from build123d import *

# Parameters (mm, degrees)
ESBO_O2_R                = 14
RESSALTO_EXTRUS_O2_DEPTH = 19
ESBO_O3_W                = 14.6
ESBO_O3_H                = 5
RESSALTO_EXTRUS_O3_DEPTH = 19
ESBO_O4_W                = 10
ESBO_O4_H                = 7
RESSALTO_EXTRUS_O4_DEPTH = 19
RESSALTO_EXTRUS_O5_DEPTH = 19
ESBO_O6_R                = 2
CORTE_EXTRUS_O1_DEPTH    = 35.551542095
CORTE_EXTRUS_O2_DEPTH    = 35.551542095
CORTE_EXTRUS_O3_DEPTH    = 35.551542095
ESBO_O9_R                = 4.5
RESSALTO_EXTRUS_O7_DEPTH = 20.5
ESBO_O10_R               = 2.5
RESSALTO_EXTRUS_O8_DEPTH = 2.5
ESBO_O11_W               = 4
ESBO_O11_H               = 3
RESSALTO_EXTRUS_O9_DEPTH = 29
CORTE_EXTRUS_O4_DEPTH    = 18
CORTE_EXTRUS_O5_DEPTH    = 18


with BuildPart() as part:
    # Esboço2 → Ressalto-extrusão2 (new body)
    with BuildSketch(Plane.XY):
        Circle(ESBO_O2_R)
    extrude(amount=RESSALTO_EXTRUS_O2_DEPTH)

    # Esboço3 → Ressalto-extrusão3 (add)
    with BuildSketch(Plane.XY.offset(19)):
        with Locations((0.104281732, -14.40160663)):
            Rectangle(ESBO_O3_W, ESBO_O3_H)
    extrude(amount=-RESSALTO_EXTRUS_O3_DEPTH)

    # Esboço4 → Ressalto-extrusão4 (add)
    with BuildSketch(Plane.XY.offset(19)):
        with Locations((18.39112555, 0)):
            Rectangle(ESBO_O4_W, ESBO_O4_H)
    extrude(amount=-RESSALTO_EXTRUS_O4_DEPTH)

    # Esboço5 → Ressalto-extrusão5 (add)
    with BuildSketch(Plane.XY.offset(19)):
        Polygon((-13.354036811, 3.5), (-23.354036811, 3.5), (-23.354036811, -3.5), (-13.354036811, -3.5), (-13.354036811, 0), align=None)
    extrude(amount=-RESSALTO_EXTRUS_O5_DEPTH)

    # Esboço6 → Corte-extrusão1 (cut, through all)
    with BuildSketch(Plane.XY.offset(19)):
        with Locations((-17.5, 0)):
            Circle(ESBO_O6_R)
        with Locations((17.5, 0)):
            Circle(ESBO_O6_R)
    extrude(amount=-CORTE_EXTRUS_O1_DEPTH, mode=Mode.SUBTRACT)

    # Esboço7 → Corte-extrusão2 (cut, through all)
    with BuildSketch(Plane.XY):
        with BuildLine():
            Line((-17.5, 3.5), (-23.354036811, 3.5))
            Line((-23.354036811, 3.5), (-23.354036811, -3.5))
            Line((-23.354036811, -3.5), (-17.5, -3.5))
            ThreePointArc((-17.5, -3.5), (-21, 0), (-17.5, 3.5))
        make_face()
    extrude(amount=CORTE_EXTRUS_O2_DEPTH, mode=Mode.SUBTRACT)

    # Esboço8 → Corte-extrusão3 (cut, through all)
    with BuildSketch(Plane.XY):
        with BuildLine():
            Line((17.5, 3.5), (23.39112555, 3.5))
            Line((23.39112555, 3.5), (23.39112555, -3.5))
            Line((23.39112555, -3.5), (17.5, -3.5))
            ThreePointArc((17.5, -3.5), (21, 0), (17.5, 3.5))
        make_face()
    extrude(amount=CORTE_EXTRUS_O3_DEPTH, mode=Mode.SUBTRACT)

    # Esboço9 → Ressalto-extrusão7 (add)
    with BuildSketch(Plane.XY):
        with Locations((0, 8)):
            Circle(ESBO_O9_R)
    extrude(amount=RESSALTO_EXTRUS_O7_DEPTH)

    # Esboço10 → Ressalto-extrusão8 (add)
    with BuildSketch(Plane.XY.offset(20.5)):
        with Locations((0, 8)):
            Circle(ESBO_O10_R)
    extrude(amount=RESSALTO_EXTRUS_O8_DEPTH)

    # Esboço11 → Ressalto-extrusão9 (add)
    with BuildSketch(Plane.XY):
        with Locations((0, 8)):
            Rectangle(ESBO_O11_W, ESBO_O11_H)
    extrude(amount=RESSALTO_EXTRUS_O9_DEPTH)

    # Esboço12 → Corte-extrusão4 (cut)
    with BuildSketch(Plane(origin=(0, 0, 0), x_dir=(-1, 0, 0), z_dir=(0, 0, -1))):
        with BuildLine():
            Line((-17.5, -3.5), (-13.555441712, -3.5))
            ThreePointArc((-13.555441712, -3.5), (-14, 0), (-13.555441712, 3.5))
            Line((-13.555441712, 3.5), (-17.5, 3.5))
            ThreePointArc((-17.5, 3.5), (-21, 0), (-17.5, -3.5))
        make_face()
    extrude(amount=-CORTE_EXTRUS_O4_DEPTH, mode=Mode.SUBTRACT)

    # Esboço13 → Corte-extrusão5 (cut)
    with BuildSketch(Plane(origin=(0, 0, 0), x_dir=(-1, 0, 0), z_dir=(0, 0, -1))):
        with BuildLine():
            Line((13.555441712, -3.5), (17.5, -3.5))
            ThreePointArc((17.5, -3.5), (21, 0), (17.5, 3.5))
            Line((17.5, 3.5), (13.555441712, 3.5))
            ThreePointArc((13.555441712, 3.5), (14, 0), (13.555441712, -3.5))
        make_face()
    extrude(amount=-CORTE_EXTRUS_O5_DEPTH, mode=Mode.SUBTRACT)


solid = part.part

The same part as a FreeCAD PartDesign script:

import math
import FreeCAD as App
import Part
import Sketcher
from FreeCAD import Vector


def add_polygon(sketch, points):
    """Adds a closed chain of lines whose ends are joined by coincident constraints."""
    first, n = sketch.GeometryCount, len(points)
    for a, b in zip(points, points[1:] + points[:1]):
        sketch.addGeometry(Part.LineSegment(App.Vector(*a, 0), App.Vector(*b, 0)), False)
    for i in range(n):
        sketch.addConstraint(Sketcher.Constraint("Coincident", first + i, 2, first + (i + 1) % n, 1))

doc = App.newDocument("Part")
body = doc.addObject("PartDesign::Body", "Body")

# Sketch on XY plane
sketch1 = doc.addObject("Sketcher::SketchObject", "Sketch")
body.addObject(sketch1)
sketch1.AttachmentSupport = (doc.XY_Plane, [""])
sketch1.MapMode = "FlatFace"
sketch1.addGeometry(Part.Circle(Vector(0, 0, 0), Vector(0, 0, 1), 14), False)
sketch1.addConstraint([
    Sketcher.Constraint("Coincident", 0, 3, -1, 1),
    Sketcher.Constraint("Diameter", 0, 28.0),
])
pad1 = doc.addObject("PartDesign::Pad", "Pad")
body.addObject(pad1)
pad1.Profile = sketch1
pad1.Length = 19

# Sketch on XY plane
sketch2 = doc.addObject("Sketcher::SketchObject", "Sketch001")
body.addObject(sketch2)
sketch2.AttachmentSupport = (doc.XY_Plane, [""])
sketch2.MapMode = "FlatFace"
sketch2.AttachmentOffset = App.Placement(Vector(0, 0, 19), App.Rotation())
add_polygon(sketch2, [(-7, -12), (-7, -17), (7, -17), (7, -12)])  # lines 0-3
sketch2.addConstraint([
    Sketcher.Constraint("Vertical", 0),
    Sketcher.Constraint("Horizontal", 1),
    Sketcher.Constraint("Vertical", 2),
    Sketcher.Constraint("Horizontal", 3),
    Sketcher.Constraint("DistanceY", 0, 2, 0, 1, 5.0),
    Sketcher.Constraint("DistanceX", 1, 1, 1, 2, 14.6),
    Sketcher.Constraint("DistanceX", 0, 2, -1, 1, 7.195718),
    Sketcher.Constraint("DistanceY", 0, 2, -1, 1, 16.901607),
])
pad2 = doc.addObject("PartDesign::Pad", "Pad001")
body.addObject(pad2)
pad2.Profile = sketch2
pad2.Length = 19
pad2.Reversed = True

# Sketch on XY plane
sketch3 = doc.addObject("Sketcher::SketchObject", "Sketch002")
body.addObject(sketch3)
sketch3.AttachmentSupport = (doc.XY_Plane, [""])
sketch3.MapMode = "FlatFace"
sketch3.AttachmentOffset = App.Placement(Vector(0, 0, 19), App.Rotation())
add_polygon(sketch3, [(13, 4), (13, -4), (23, -4), (23, 4)])  # lines 0-3
sketch3.addConstraint([
    Sketcher.Constraint("Vertical", 0),
    Sketcher.Constraint("Horizontal", 1),
    Sketcher.Constraint("Vertical", 2),
    Sketcher.Constraint("Horizontal", 3),
    Sketcher.Constraint("DistanceX", 1, 1, 1, 2, 10.0),
    Sketcher.Constraint("DistanceY", 0, 2, 0, 1, 7.0),
    Sketcher.Constraint("DistanceY", 0, 2, -1, 1, 3.5),
    Sketcher.Constraint("DistanceX", -1, 1, 0, 2, 13.391126),
])
pad3 = doc.addObject("PartDesign::Pad", "Pad002")
body.addObject(pad3)
pad3.Profile = sketch3
pad3.Length = 19
pad3.Reversed = True

# Sketch on XY plane
sketch4 = doc.addObject("Sketcher::SketchObject", "Sketch003")
body.addObject(sketch4)
sketch4.AttachmentSupport = (doc.XY_Plane, [""])
sketch4.MapMode = "FlatFace"
sketch4.AttachmentOffset = App.Placement(Vector(0, 0, 19), App.Rotation())
add_polygon(sketch4, [(-13, 4), (-23, 4), (-23, -4), (-13, -4)])  # lines 0-3
sketch4.addConstraint([
    Sketcher.Constraint("Horizontal", 0),
    Sketcher.Constraint("Vertical", 1),
    Sketcher.Constraint("Horizontal", 2),
    Sketcher.Constraint("Vertical", 3),
    Sketcher.Constraint("DistanceX", 0, 2, 0, 1, 10.0),
    Sketcher.Constraint("DistanceY", 1, 2, 1, 1, 7.0),
    Sketcher.Constraint("DistanceY", -1, 1, 0, 2, 3.5),
    Sketcher.Constraint("DistanceX", 0, 2, -1, 1, 23.354037),
])
pad4 = doc.addObject("PartDesign::Pad", "Pad003")
body.addObject(pad4)
pad4.Profile = sketch4
pad4.Length = 19
pad4.Reversed = True

# Sketch on XY plane
sketch5 = doc.addObject("Sketcher::SketchObject", "Sketch004")
body.addObject(sketch5)
sketch5.AttachmentSupport = (doc.XY_Plane, [""])
sketch5.MapMode = "FlatFace"
sketch5.AttachmentOffset = App.Placement(Vector(0, 0, 19), App.Rotation())
sketch5.addGeometry([
    Part.Circle(Vector(-17.5, 0, 0), Vector(0, 0, 1), 2),
    Part.Circle(Vector(17.5, 0, 0), Vector(0, 0, 1), 2),
], False)
sketch5.addConstraint([
    Sketcher.Constraint("Equal", 0, 1),
    Sketcher.Constraint("Symmetric", 0, 3, 1, 3, -1, 1),
    Sketcher.Constraint("PointOnObject", 0, 3, -1),
    Sketcher.Constraint("Diameter", 0, 4.0),
    Sketcher.Constraint("DistanceX", 0, 3, 1, 3, 35.0),
])
pocket1 = doc.addObject("PartDesign::Pocket", "Pocket")
body.addObject(pocket1)
pocket1.Profile = sketch5
pocket1.Type = "ThroughAll"

# Sketch on XY plane
sketch6 = doc.addObject("Sketcher::SketchObject", "Sketch005")
body.addObject(sketch6)
sketch6.AttachmentSupport = (doc.XY_Plane, [""])
sketch6.MapMode = "FlatFace"
sketch6.addGeometry([
    Part.LineSegment(Vector(-17.5, 3.5, 0), Vector(-23.4, 3.5, 0)),
    Part.LineSegment(Vector(-23.4, 3.5, 0), Vector(-23.4, -3.5, 0)),
    Part.LineSegment(Vector(-23.4, -3.5, 0), Vector(-17.5, -3.5, 0)),
    Part.ArcOfCircle(Part.Circle(Vector(-17.5, 0, 0), Vector(0, 0, 1), 3.5), math.radians(90), math.radians(270)),
], False)
sketch6.addConstraint([
    Sketcher.Constraint("Coincident", 0, 2, 1, 1),
    Sketcher.Constraint("Coincident", 1, 2, 2, 1),
    Sketcher.Constraint("Tangent", 2, 2, 3, 2),
    Sketcher.Constraint("Tangent", 3, 1, 0, 1),
    Sketcher.Constraint("Horizontal", 0),
    Sketcher.Constraint("Vertical", 1),
    Sketcher.Constraint("Horizontal", 2),
    Sketcher.Constraint("PointOnObject", 3, 3, -1),
    Sketcher.Constraint("Radius", 3, 3.5),
    Sketcher.Constraint("DistanceX", 3, 3, -1, 1, 17.5),
    Sketcher.Constraint("DistanceX", 0, 2, 0, 1, 5.854037),
])
pocket2 = doc.addObject("PartDesign::Pocket", "Pocket001")
body.addObject(pocket2)
pocket2.Profile = sketch6
pocket2.Type = "ThroughAll"
pocket2.Reversed = True

# Sketch on XY plane
sketch7 = doc.addObject("Sketcher::SketchObject", "Sketch006")
body.addObject(sketch7)
sketch7.AttachmentSupport = (doc.XY_Plane, [""])
sketch7.MapMode = "FlatFace"
sketch7.addGeometry([
    Part.LineSegment(Vector(23.4, 3.5, 0), Vector(17.5, 3.5, 0)),
    Part.ArcOfCircle(Part.Circle(Vector(17.5, 0, 0), Vector(0, 0, 1), 3.5), math.radians(-90), math.radians(90)),
    Part.LineSegment(Vector(17.5, -3.5, 0), Vector(23.4, -3.5, 0)),
    Part.LineSegment(Vector(23.4, -3.5, 0), Vector(23.4, 3.5, 0)),
], False)
sketch7.addConstraint([
    Sketcher.Constraint("Tangent", 0, 2, 1, 2),
    Sketcher.Constraint("Tangent", 1, 1, 2, 1),
    Sketcher.Constraint("Coincident", 2, 2, 3, 1),
    Sketcher.Constraint("Coincident", 3, 2, 0, 1),
    Sketcher.Constraint("Horizontal", 0),
    Sketcher.Constraint("Horizontal", 2),
    Sketcher.Constraint("Vertical", 3),
    Sketcher.Constraint("PointOnObject", 1, 3, -1),
    Sketcher.Constraint("Radius", 1, 3.5),
    Sketcher.Constraint("DistanceX", -1, 1, 1, 3, 17.5),
    Sketcher.Constraint("DistanceX", 0, 2, 0, 1, 5.891126),
])
pocket3 = doc.addObject("PartDesign::Pocket", "Pocket002")
body.addObject(pocket3)
pocket3.Profile = sketch7
pocket3.Type = "ThroughAll"
pocket3.Reversed = True

# Sketch on XY plane
sketch8 = doc.addObject("Sketcher::SketchObject", "Sketch007")
body.addObject(sketch8)
sketch8.AttachmentSupport = (doc.XY_Plane, [""])
sketch8.MapMode = "FlatFace"
sketch8.addGeometry(Part.Circle(Vector(0, 8, 0), Vector(0, 0, 1), 4.5), False)
sketch8.addConstraint([
    Sketcher.Constraint("PointOnObject", 0, 3, -2),
    Sketcher.Constraint("Diameter", 0, 9.0),
    Sketcher.Constraint("DistanceY", -1, 1, 0, 3, 8.0),
])
pad5 = doc.addObject("PartDesign::Pad", "Pad004")
body.addObject(pad5)
pad5.Profile = sketch8
pad5.Length = 20.5

# Sketch on XY plane
sketch9 = doc.addObject("Sketcher::SketchObject", "Sketch008")
body.addObject(sketch9)
sketch9.AttachmentSupport = (doc.XY_Plane, [""])
sketch9.MapMode = "FlatFace"
sketch9.AttachmentOffset = App.Placement(Vector(0, 0, 20.5), App.Rotation())
sketch9.addGeometry(Part.Circle(Vector(0, 8, 0), Vector(0, 0, 1), 2.5), False)
sketch9.addConstraint([
    Sketcher.Constraint("PointOnObject", 0, 3, -2),
    Sketcher.Constraint("Diameter", 0, 5.0),
    Sketcher.Constraint("DistanceY", -1, 1, 0, 3, 8.0),
])
pad6 = doc.addObject("PartDesign::Pad", "Pad005")
body.addObject(pad6)
pad6.Profile = sketch9
pad6.Length = 2.5

# Sketch on XY plane
sketch10 = doc.addObject("Sketcher::SketchObject", "Sketch009")
body.addObject(sketch10)
sketch10.AttachmentSupport = (doc.XY_Plane, [""])
sketch10.MapMode = "FlatFace"
add_polygon(sketch10, [(-2, 9.5), (-2, 6.5), (2, 6.5), (2, 9.5)])  # lines 0-3
sketch10.addConstraint([
    Sketcher.Constraint("Vertical", 0),
    Sketcher.Constraint("Horizontal", 1),
    Sketcher.Constraint("Vertical", 2),
    Sketcher.Constraint("Horizontal", 3),
    Sketcher.Constraint("DistanceX", 1, 1, 1, 2, 4.0),
    Sketcher.Constraint("DistanceY", 0, 2, 0, 1, 3.0),
    Sketcher.Constraint("DistanceX", 0, 2, -1, 1, 2.0),
    Sketcher.Constraint("DistanceY", -1, 1, 0, 2, 6.5),
])
pad7 = doc.addObject("PartDesign::Pad", "Pad006")
body.addObject(pad7)
pad7.Profile = sketch10
pad7.Length = 29

# Sketch on XY plane
sketch11 = doc.addObject("Sketcher::SketchObject", "Sketch010")
body.addObject(sketch11)
sketch11.AttachmentSupport = (doc.XY_Plane, [""])
sketch11.MapMode = "FlatFace"
sketch11.addGeometry([
    Part.LineSegment(Vector(17.5, -3.5, 0), Vector(13.6, -3.5, 0)),
    Part.ArcOfCircle(Part.Circle(Vector(0, 0, 0), Vector(0, 0, 1), 14), math.radians(-14), math.radians(14)),
    Part.LineSegment(Vector(13.6, 3.5, 0), Vector(17.5, 3.5, 0)),
    Part.ArcOfCircle(Part.Circle(Vector(17.5, 0, 0), Vector(0, 0, 1), 3.5), math.radians(-90), math.radians(90)),
], False)
sketch11.addConstraint([
    Sketcher.Constraint("Coincident", 0, 2, 1, 1),
    Sketcher.Constraint("Coincident", 1, 2, 2, 1),
    Sketcher.Constraint("Tangent", 2, 2, 3, 2),
    Sketcher.Constraint("Tangent", 3, 1, 0, 1),
    Sketcher.Constraint("Horizontal", 0),
    Sketcher.Constraint("Horizontal", 2),
    Sketcher.Constraint("Coincident", 1, 3, -1, 1),
    Sketcher.Constraint("PointOnObject", 3, 3, -1),
    Sketcher.Constraint("Radius", 1, 14.0),
    Sketcher.Constraint("Radius", 3, 3.5),
    Sketcher.Constraint("DistanceX", -1, 1, 3, 3, 17.5),
])
pocket4 = doc.addObject("PartDesign::Pocket", "Pocket003")
body.addObject(pocket4)
pocket4.Profile = sketch11
pocket4.Length = 18
pocket4.Reversed = True

# Sketch on XY plane
sketch12 = doc.addObject("Sketcher::SketchObject", "Sketch011")
body.addObject(sketch12)
sketch12.AttachmentSupport = (doc.XY_Plane, [""])
sketch12.MapMode = "FlatFace"
sketch12.addGeometry([
    Part.LineSegment(Vector(-13.6, -3.5, 0), Vector(-17.5, -3.5, 0)),
    Part.ArcOfCircle(Part.Circle(Vector(-17.5, 0, 0), Vector(0, 0, 1), 3.5), math.radians(90), math.radians(270)),
    Part.LineSegment(Vector(-17.5, 3.5, 0), Vector(-13.6, 3.5, 0)),
    Part.ArcOfCircle(Part.Circle(Vector(0, 0, 0), Vector(0, 0, 1), 14), math.radians(166), math.radians(194)),
], False)
sketch12.addConstraint([
    Sketcher.Constraint("Tangent", 0, 2, 1, 2),
    Sketcher.Constraint("Tangent", 1, 1, 2, 1),
    Sketcher.Constraint("Coincident", 2, 2, 3, 1),
    Sketcher.Constraint("Coincident", 3, 2, 0, 1),
    Sketcher.Constraint("Horizontal", 0),
    Sketcher.Constraint("Horizontal", 2),
    Sketcher.Constraint("Coincident", 3, 3, -1, 1),
    Sketcher.Constraint("PointOnObject", 1, 3, -1),
    Sketcher.Constraint("Radius", 3, 14.0),
    Sketcher.Constraint("Radius", 1, 3.5),
    Sketcher.Constraint("DistanceX", 1, 3, -1, 1, 17.5),
])
pocket5 = doc.addObject("PartDesign::Pocket", "Pocket004")
body.addObject(pocket5)
pocket5.Profile = sketch12
pocket5.Length = 18
pocket5.Reversed = True

doc.recompute()
